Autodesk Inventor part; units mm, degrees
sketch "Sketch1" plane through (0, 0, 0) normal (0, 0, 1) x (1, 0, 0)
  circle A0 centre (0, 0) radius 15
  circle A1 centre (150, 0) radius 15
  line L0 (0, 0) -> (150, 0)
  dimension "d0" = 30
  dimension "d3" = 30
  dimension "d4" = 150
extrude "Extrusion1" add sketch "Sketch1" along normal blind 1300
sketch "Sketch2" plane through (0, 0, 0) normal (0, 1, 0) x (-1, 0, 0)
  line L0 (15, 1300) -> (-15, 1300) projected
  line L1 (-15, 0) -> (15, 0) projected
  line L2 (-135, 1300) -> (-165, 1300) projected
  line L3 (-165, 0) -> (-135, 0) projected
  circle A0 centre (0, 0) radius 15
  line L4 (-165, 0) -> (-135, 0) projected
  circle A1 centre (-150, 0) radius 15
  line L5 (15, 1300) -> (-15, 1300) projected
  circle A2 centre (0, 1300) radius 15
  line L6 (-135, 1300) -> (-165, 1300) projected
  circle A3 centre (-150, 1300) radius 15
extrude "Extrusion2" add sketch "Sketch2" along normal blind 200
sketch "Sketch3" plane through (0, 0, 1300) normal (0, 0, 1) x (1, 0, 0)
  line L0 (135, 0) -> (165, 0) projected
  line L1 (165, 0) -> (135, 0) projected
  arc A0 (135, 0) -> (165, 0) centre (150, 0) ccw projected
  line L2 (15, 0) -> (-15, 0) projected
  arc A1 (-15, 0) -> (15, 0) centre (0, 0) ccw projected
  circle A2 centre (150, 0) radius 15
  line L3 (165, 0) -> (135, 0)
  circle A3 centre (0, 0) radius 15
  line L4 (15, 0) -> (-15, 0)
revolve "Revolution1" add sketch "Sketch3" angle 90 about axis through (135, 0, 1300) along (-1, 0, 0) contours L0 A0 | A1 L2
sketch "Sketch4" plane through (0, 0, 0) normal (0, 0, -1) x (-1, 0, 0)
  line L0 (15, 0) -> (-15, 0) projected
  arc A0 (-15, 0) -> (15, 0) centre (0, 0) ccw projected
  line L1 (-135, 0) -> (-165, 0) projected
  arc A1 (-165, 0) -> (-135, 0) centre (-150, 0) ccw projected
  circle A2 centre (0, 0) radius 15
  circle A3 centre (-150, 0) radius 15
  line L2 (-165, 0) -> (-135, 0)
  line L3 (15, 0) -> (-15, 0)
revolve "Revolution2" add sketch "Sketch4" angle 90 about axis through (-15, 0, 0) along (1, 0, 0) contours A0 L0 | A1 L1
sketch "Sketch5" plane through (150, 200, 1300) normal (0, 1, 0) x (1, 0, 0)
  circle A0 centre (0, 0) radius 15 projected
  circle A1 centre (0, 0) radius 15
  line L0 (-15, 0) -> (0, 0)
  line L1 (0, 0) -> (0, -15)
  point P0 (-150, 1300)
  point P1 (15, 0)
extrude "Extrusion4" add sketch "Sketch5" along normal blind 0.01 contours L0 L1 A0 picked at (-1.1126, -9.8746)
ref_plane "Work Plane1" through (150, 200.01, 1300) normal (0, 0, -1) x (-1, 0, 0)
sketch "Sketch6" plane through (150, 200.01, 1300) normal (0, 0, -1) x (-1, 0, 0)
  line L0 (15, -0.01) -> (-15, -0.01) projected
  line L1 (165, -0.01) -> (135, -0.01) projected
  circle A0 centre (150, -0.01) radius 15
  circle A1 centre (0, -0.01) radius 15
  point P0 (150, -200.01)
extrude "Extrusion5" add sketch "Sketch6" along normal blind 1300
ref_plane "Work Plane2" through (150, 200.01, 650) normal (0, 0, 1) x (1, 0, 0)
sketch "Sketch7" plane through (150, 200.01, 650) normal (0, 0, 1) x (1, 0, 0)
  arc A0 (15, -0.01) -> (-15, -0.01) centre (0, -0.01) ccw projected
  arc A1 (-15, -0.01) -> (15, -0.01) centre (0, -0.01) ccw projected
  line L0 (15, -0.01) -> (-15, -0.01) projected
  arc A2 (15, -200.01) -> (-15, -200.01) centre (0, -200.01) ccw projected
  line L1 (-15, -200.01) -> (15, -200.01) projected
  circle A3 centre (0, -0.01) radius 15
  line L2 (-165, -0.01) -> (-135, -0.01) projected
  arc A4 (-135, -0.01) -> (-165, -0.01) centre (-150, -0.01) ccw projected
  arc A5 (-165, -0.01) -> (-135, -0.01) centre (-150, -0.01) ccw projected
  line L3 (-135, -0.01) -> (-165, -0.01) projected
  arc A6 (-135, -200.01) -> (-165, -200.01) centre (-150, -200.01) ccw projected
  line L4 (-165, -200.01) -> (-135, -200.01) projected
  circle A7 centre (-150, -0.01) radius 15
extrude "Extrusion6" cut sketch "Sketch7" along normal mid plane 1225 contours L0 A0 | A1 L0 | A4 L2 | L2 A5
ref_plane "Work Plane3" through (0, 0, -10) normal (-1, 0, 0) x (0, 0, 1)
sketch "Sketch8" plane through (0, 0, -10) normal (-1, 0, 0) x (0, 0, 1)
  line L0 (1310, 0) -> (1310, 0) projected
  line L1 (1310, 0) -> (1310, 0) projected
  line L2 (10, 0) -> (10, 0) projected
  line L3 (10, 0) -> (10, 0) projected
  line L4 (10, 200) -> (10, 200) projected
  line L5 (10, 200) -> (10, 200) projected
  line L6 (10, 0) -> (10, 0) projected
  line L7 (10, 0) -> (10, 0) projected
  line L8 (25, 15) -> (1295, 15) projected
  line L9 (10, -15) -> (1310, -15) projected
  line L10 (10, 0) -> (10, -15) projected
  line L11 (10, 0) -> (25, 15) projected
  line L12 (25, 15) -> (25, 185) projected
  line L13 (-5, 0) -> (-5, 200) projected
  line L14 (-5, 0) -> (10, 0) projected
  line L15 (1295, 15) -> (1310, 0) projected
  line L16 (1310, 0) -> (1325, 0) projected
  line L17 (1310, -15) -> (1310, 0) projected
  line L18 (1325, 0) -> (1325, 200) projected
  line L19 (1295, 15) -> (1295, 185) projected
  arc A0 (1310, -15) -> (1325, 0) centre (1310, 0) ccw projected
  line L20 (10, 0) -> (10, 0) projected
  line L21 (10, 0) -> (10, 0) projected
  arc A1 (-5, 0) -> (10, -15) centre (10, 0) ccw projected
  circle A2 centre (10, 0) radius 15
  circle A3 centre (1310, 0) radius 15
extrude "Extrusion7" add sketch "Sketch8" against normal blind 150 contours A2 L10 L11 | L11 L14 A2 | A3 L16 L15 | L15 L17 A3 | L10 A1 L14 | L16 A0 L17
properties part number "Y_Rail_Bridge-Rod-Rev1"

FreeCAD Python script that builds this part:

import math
import FreeCAD as App
import Part
import Sketcher
Q = App.Units.Quantity

doc = App.newDocument("Part")
body = doc.addObject("PartDesign::Body", "Body")
body.AllowCompound = True

# Sketch on XY plane
sketch1 = body.newObject("Sketcher::SketchObject", "Sketch")
sketch1.AttachmentSupport = (doc.getObject("XY_Plane"), [""])
sketch1.MapMode = "FlatFace"
sketch1.addGeometry([
    Part.Circle(App.Vector(0, 0, 0), App.Vector(0, 0, 1), 15),
    Part.Circle(App.Vector(150, 0, 0), App.Vector(0, 0, 1), 15),
], False)
sketch1.addConstraint([
    Sketcher.Constraint("Coincident", 0, 3, -1, 1),
    Sketcher.Constraint("Equal", 0, 1),
    Sketcher.Constraint("PointOnObject", 1, 3, -1),
    Sketcher.Constraint("Diameter", 0, Q("30 mm")),
    Sketcher.Constraint("DistanceX", -1, 1, 1, 3, Q("150 mm")),
])
pad1 = body.newObject("PartDesign::Pad", "Pad")
pad1.Profile = sketch1
pad1.Length = 1300

# Sketch on XZ plane
sketch2 = body.newObject("Sketcher::SketchObject", "Sketch001")
sketch2.AttachmentSupport = (doc.getObject("XZ_Plane"), [""])
sketch2.MapMode = "FlatFace"
sketch2.addGeometry([
    Part.Circle(App.Vector(0, 1300, 0), App.Vector(0, 0, 1), 15),
    Part.Circle(App.Vector(0, 0, 0), App.Vector(0, 0, 1), 15),
    Part.Circle(App.Vector(150, 1300, 0), App.Vector(0, 0, 1), 15),
    Part.Circle(App.Vector(150, 0, 0), App.Vector(0, 0, 1), 15),
], False)
sketch2.addConstraint([
    Sketcher.Constraint("Coincident", 1, 3, -1, 1),
    Sketcher.Constraint("Equal", 0, 1),
    Sketcher.Constraint("Equal", 1, 2),
    Sketcher.Constraint("Equal", 2, 3),
    Sketcher.Constraint("PointOnObject", 0, 3, -2),
    Sketcher.Constraint("PointOnObject", 3, 3, -1),
    Sketcher.Constraint("Horizontal", 0, 3, 2, 3),
    Sketcher.Constraint("Vertical", 2, 3, 3, 3),
    Sketcher.Constraint("Diameter", 0, Q("30 mm")),
    Sketcher.Constraint("DistanceY", -1, 1, 0, 3, Q("1300 mm")),
    Sketcher.Constraint("DistanceX", -1, 1, 2, 3, Q("150 mm")),
])
pad2 = body.newObject("PartDesign::Pad", "Pad001")
pad2.Profile = sketch2
pad2.Length = 200
pad2.Reversed = True

# Sketch on XY plane
sketch3 = body.newObject("Sketcher::SketchObject", "Sketch002")
sketch3.AttachmentSupport = (doc.getObject("XY_Plane"), [""])
sketch3.MapMode = "FlatFace"
sketch3.AttachmentOffset = App.Placement(App.Vector(0, 0, 1300), App.Rotation())
sketch3.addGeometry([
    Part.LineSegment(App.Vector(165, 0, 0), App.Vector(135, 0, 0)),
    Part.ArcOfCircle(Part.Circle(App.Vector(150, 0, 0), App.Vector(0, 0, 1), 15), math.radians(180), math.radians(360)),
    Part.ArcOfCircle(Part.Circle(App.Vector(0, 0, 0), App.Vector(0, 0, 1), 15), math.radians(180), math.radians(360)),
    Part.LineSegment(App.Vector(15, 0, 0), App.Vector(-15, 0, 0)),
], False)
sketch3.addConstraint([
    Sketcher.Constraint("Coincident", 0, 1, 1, 2),
    Sketcher.Constraint("Coincident", 1, 1, 0, 2),
    Sketcher.Constraint("Coincident", 2, 1, 3, 2),
    Sketcher.Constraint("Coincident", 3, 1, 2, 2),
    Sketcher.Constraint("Horizontal", 0),
    Sketcher.Constraint("Horizontal", 3),
    Sketcher.Constraint("Coincident", 2, 3, -1, 1),
    Sketcher.Constraint("Equal", 1, 2),
    Sketcher.Constraint("PointOnObject", 1, 3, -1),
    Sketcher.Constraint("PointOnObject", 0, 1, -1),
    Sketcher.Constraint("PointOnObject", 2, 1, -1),
    Sketcher.Constraint("Radius", 1, Q("15 mm")),
    Sketcher.Constraint("DistanceX", -1, 1, 1, 3, Q("150 mm")),
])
revolution = body.newObject("PartDesign::Revolution", "Revolution")
revolution.Profile = sketch3
revolution.ReferenceAxis = (sketch3, ["H_Axis"])
revolution.Angle = 90
revolution.Reversed = True

# Sketch on XY plane
sketch4 = body.newObject("Sketcher::SketchObject", "Sketch003")
sketch4.AttachmentSupport = (doc.getObject("XY_Plane"), [""])
sketch4.MapMode = "FlatFace"
sketch4.addGeometry([
    Part.ArcOfCircle(Part.Circle(App.Vector(0, 0, 0), App.Vector(0, 0, 1), 15), math.radians(180), math.radians(360)),
    Part.LineSegment(App.Vector(-15, 0, 0), App.Vector(15, 0, 0)),
    Part.ArcOfCircle(Part.Circle(App.Vector(150, 0, 0), App.Vector(0, 0, 1), 15), math.radians(180), math.radians(360)),
    Part.LineSegment(App.Vector(135, 0, 0), App.Vector(165, 0, 0)),
], False)
sketch4.addConstraint([
    Sketcher.Constraint("Coincident", 0, 1, 1, 1),
    Sketcher.Constraint("Coincident", 1, 2, 0, 2),
    Sketcher.Constraint("Coincident", 2, 1, 3, 1),
    Sketcher.Constraint("Coincident", 3, 2, 2, 2),
    Sketcher.Constraint("Horizontal", 1),
    Sketcher.Constraint("Horizontal", 3),
    Sketcher.Constraint("Coincident", 0, 3, -1, 1),
    Sketcher.Constraint("Equal", 0, 2),
    Sketcher.Constraint("PointOnObject", 2, 3, -1),
    Sketcher.Constraint("PointOnObject", 0, 1, -1),
    Sketcher.Constraint("PointOnObject", 2, 1, -1),
    Sketcher.Constraint("Radius", 0, Q("15 mm")),
    Sketcher.Constraint("DistanceX", -1, 1, 2, 3, Q("150 mm")),
])
revolution2 = body.newObject("PartDesign::Revolution", "Revolution001")
revolution2.Profile = sketch4
revolution2.ReferenceAxis = (sketch4, ["H_Axis"])
revolution2.Angle = 90

# Sketch on XZ plane
sketch5 = body.newObject("Sketcher::SketchObject", "Sketch004")
sketch5.AttachmentSupport = (doc.getObject("XZ_Plane"), [""])
sketch5.MapMode = "FlatFace"
sketch5.AttachmentOffset = App.Placement(App.Vector(0, 0, -200), App.Rotation())
sketch5.addGeometry([
    Part.LineSegment(App.Vector(150, 1300, 0), App.Vector(135, 1300, 0)),
    Part.ArcOfCircle(Part.Circle(App.Vector(150, 1300, 0), App.Vector(0, 0, 1), 15), math.radians(90), math.radians(180)),
    Part.LineSegment(App.Vector(150, 1315, 0), App.Vector(150, 1300, 0)),
], False)
sketch5.addConstraint([
    Sketcher.Constraint("Coincident", 0, 2, 1, 2),
    Sketcher.Constraint("Coincident", 1, 1, 2, 1),
    Sketcher.Constraint("Coincident", 2, 2, 0, 1),
    Sketcher.Constraint("Horizontal", 0),
    Sketcher.Constraint("Vertical", 2),
    Sketcher.Constraint("Coincident", 2, 2, 1, 3),
    Sketcher.Constraint("Radius", 1, Q("15 mm")),
    Sketcher.Constraint("DistanceX", -1, 1, 1, 3, Q("150 mm")),
    Sketcher.Constraint("DistanceY", -1, 1, 1, 3, Q("1300 mm")),
])
pad3 = body.newObject("PartDesign::Pad", "Pad002")
pad3.Profile = sketch5
pad3.Length = 0.01
pad3.Reversed = True

# Sketch on XY plane
sketch6 = body.newObject("Sketcher::SketchObject", "Sketch005")
sketch6.AttachmentSupport = (doc.getObject("XY_Plane"), [""])
sketch6.MapMode = "FlatFace"
sketch6.AttachmentOffset = App.Placement(App.Vector(0, 0, 1300), App.Rotation())
sketch6.addGeometry([
    Part.Circle(App.Vector(150, 200, 0), App.Vector(0, 0, 1), 15),
    Part.Circle(App.Vector(0, 200, 0), App.Vector(0, 0, 1), 15),
], False)
sketch6.addConstraint([
    Sketcher.Constraint("Equal", 0, 1),
    Sketcher.Constraint("PointOnObject", 1, 3, -2),
    Sketcher.Constraint("Horizontal", 0, 3, 1, 3),
    Sketcher.Constraint("Diameter", 0, Q("30 mm")),
    Sketcher.Constraint("DistanceX", -1, 1, 0, 3, Q("150 mm")),
    Sketcher.Constraint("DistanceY", -1, 1, 0, 3, Q("200 mm")),
])
pad4 = body.newObject("PartDesign::Pad", "Pad003")
pad4.Profile = sketch6
pad4.Length = 1300
pad4.Reversed = True

# Sketch on XY plane
sketch7 = body.newObject("Sketcher::SketchObject", "Sketch006")
sketch7.AttachmentSupport = (doc.getObject("XY_Plane"), [""])
sketch7.MapMode = "FlatFace"
sketch7.AttachmentOffset = App.Placement(App.Vector(0, 0, 650), App.Rotation())
sketch7.addGeometry([
    Part.Circle(App.Vector(150, 200, 0), App.Vector(0, 0, 1), 15),
    Part.Circle(App.Vector(0, 200, 0), App.Vector(0, 0, 1), 15),
], False)
sketch7.addConstraint([
    Sketcher.Constraint("Equal", 0, 1),
    Sketcher.Constraint("PointOnObject", 1, 3, -2),
    Sketcher.Constraint("Horizontal", 0, 3, 1, 3),
    Sketcher.Constraint("Diameter", 0, Q("30 mm")),
    Sketcher.Constraint("DistanceX", -1, 1, 0, 3, Q("150 mm")),
    Sketcher.Constraint("DistanceY", -1, 1, 0, 3, Q("200 mm")),
])
pocket1 = body.newObject("PartDesign::Pocket", "Pocket")
pocket1.Profile = sketch7
pocket1.Length = 1225
pocket1.Midplane = True

# Sketch on YZ plane
sketch8 = body.newObject("Sketcher::SketchObject", "Sketch007")
sketch8.AttachmentSupport = (doc.getObject("YZ_Plane"), [""])
sketch8.MapMode = "FlatFace"
sketch8.addGeometry([
    Part.Circle(App.Vector(0, 0, 0), App.Vector(0, 0, 1), 15),
    Part.Circle(App.Vector(0, 1300, 0), App.Vector(0, 0, 1), 15),
], False)
sketch8.addConstraint([
    Sketcher.Constraint("Coincident", 0, 3, -1, 1),
    Sketcher.Constraint("Equal", 0, 1),
    Sketcher.Constraint("PointOnObject", 1, 3, -2),
    Sketcher.Constraint("Diameter", 0, Q("30 mm")),
    Sketcher.Constraint("DistanceY", -1, 1, 1, 3, Q("1300 mm")),
])
pad5 = body.newObject("PartDesign::Pad", "Pad004")
pad5.Profile = sketch8
pad5.Length = 150

doc.recompute()
